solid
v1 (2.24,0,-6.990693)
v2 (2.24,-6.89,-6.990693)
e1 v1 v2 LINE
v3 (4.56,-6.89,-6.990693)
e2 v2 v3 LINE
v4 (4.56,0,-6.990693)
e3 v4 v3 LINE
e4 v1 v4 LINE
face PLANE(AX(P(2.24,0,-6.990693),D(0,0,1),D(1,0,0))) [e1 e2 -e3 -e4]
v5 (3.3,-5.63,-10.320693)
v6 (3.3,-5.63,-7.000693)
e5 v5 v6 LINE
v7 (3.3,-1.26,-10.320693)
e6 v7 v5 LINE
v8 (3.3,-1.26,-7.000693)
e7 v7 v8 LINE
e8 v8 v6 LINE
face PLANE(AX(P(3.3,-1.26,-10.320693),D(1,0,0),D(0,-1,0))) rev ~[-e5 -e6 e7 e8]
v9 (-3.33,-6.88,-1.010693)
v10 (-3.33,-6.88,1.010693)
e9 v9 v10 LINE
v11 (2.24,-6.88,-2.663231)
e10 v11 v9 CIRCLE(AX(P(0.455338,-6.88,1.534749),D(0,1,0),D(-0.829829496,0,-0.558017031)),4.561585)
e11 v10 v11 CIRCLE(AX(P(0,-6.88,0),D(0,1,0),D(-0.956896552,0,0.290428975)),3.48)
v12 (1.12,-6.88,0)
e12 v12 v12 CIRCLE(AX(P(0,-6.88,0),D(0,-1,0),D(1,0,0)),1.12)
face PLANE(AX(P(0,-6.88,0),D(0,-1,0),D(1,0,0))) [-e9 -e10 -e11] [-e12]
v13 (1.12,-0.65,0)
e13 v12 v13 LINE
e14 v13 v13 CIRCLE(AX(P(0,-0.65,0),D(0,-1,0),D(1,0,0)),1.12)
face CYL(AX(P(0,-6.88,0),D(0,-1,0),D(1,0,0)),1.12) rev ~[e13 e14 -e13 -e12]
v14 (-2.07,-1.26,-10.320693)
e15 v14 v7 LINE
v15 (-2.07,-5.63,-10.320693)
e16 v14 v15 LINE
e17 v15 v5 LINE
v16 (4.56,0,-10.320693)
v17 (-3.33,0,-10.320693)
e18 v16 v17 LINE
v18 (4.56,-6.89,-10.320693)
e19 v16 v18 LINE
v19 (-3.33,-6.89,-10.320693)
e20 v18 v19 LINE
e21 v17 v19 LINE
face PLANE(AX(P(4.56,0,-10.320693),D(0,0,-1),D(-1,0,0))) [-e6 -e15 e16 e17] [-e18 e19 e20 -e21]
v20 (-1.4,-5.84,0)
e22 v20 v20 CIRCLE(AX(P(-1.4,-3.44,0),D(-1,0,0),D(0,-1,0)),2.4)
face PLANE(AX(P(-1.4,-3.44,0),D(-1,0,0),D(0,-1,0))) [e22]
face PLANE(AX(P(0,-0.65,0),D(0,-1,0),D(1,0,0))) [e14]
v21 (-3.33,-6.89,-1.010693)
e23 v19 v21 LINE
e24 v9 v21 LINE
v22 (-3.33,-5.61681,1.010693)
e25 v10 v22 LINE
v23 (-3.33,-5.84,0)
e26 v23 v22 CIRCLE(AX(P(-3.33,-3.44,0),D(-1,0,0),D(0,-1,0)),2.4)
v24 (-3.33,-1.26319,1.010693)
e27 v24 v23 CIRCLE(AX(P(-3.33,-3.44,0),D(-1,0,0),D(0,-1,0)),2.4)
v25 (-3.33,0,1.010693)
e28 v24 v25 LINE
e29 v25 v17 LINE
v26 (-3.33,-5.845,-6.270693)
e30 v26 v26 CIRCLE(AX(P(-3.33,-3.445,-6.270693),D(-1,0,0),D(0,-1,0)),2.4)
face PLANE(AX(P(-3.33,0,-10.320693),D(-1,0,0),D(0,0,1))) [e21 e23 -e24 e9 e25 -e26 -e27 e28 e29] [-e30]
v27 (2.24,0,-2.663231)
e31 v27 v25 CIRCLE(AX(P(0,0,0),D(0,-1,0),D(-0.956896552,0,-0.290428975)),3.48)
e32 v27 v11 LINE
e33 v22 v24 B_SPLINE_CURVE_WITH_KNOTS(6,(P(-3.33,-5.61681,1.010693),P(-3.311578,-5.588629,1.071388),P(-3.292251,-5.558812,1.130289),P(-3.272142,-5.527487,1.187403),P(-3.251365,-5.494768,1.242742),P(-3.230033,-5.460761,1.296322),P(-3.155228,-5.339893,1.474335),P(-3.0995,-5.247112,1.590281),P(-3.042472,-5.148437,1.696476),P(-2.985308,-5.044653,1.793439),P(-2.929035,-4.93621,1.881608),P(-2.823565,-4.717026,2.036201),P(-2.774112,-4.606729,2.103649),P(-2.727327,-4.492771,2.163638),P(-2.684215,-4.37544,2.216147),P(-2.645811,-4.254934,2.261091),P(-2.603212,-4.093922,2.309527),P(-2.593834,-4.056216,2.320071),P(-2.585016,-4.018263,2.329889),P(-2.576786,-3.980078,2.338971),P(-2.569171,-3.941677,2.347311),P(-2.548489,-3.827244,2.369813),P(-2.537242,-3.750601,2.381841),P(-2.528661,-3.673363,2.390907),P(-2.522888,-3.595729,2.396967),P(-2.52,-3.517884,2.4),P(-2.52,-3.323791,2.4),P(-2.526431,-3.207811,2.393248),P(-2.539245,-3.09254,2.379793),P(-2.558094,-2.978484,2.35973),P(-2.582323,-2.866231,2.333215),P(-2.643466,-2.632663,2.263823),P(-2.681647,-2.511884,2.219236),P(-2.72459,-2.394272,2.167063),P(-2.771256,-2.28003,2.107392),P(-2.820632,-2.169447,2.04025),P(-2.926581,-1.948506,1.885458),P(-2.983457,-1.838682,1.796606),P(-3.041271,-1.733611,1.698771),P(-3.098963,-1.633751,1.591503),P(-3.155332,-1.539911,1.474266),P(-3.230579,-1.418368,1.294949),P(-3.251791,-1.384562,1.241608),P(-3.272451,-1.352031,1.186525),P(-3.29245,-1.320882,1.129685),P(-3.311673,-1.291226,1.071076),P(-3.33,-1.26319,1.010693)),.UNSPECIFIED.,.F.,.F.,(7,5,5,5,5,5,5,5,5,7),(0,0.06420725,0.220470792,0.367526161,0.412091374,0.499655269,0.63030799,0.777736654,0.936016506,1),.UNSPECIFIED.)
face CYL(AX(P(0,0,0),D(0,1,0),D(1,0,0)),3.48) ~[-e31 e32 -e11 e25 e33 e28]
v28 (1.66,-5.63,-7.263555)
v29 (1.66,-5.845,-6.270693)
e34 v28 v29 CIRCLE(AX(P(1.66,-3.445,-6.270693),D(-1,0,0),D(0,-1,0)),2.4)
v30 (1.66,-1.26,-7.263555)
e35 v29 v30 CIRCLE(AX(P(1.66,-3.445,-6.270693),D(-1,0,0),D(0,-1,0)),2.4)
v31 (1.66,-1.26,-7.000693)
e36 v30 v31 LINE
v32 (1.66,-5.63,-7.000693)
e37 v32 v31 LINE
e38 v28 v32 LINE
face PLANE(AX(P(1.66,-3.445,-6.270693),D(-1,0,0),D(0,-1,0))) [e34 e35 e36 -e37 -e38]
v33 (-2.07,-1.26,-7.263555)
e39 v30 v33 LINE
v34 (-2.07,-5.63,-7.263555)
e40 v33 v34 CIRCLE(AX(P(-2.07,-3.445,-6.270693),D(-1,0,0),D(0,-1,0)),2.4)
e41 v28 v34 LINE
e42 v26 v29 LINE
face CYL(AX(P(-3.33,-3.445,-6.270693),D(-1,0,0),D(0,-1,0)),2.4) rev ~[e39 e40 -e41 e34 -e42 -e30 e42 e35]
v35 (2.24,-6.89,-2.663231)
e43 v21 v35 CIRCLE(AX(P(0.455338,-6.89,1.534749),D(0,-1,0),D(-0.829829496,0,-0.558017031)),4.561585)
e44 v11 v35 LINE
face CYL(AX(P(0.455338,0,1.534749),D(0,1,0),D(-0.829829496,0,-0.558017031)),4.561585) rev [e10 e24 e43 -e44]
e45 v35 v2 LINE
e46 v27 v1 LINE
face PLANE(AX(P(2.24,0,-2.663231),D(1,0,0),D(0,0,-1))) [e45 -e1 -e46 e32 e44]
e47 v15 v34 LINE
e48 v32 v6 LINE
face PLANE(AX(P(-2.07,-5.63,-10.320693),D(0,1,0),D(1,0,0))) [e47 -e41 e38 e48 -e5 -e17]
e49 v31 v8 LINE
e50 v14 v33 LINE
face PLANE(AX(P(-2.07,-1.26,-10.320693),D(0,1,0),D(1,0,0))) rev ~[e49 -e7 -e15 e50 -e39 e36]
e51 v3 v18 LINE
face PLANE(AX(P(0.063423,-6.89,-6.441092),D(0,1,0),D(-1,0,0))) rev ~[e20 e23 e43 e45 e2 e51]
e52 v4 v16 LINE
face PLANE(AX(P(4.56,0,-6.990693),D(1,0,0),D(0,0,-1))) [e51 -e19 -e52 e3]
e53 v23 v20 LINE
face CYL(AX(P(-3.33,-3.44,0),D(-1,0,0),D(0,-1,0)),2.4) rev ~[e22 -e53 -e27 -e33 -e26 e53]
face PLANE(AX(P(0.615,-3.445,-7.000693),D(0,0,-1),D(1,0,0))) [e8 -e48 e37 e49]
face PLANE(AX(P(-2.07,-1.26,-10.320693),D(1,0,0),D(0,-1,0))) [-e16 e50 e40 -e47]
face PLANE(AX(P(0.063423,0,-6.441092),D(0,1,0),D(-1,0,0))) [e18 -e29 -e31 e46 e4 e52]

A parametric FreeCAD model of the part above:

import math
import FreeCAD as App
import Part
import Sketcher

V = App.Vector

doc = App.newDocument("Part")
body = doc.addObject("PartDesign::Body", "Body")

# Sketch on XZ plane
sketch1 = body.newObject("Sketcher::SketchObject", "Sketch")
sketch1.AttachmentSupport = (doc.getObject("XZ_Plane"), [""])
sketch1.MapMode = "FlatFace"
sketch1.addGeometry(Part.Circle(V(0, 0, 0), V(0, 0, 1), 3.5), False)
sketch1.addConstraint(Sketcher.Constraint("Coincident", 0, 3, -1, 1))
sketch1.addConstraint(Sketcher.Constraint("Diameter", 0, 6.96))
pad1 = body.newObject("PartDesign::Pad", "Pad")
pad1.Profile = sketch1
pad1.Length = 6.88

# Sketch on XZ plane
sketch2 = body.newObject("Sketcher::SketchObject", "Sketch001")
sketch2.AttachmentSupport = (doc.getObject("XZ_Plane"), [""])
sketch2.MapMode = "FlatFace"
sketch2.addGeometry(Part.LineSegment(V(-4.8, 2.1, 0), V(-3.3, 4.1, 0)), False)
sketch2.addGeometry(Part.LineSegment(V(-3.3, 4.1, 0), V(-3.3, -5.9, 0)), False)
sketch2.addGeometry(Part.LineSegment(V(-3.3, -5.9, 0), V(-4.8, 2.1, 0)), False)
sketch2.addConstraint(Sketcher.Constraint("Coincident", 0, 2, 1, 1))
sketch2.addConstraint(Sketcher.Constraint("Coincident", 1, 2, 2, 1))
sketch2.addConstraint(Sketcher.Constraint("Coincident", 2, 2, 0, 1))
sketch2.addConstraint(Sketcher.Constraint("Vertical", 1))
sketch2.addConstraint(Sketcher.Constraint("DistanceX", 0, 2, -1, 1, 3.33))
sketch2.addConstraint(Sketcher.Constraint("DistanceY", 1, 2, 1, 1, 9.997692))
sketch2.addConstraint(Sketcher.Constraint("DistanceY", -1, 1, 0, 2, 4.121852))
sketch2.addConstraint(Sketcher.Constraint("DistanceX", 2, 2, -1, 1, 4.844351))
sketch2.addConstraint(Sketcher.Constraint("Distance", 0, 2.492687))
pocket1 = body.newObject("PartDesign::Pocket", "Pocket")
pocket1.Profile = sketch2
pocket1.Type = "ThroughAll"
pocket1.Reversed = True

# Sketch on XZ plane
sketch3 = body.newObject("Sketcher::SketchObject", "Sketch002")
sketch3.AttachmentSupport = (doc.getObject("XZ_Plane"), [""])
sketch3.MapMode = "FlatFace"
sketch3.addGeometry(Part.LineSegment(V(-3.3, -10.3, 0), V(-3.3, -1, 0)), False)
sketch3.addGeometry(Part.ArcOfCircle(Part.Circle(V(0.5, 1.5, 0), V(0, 0, 1), 4.6), math.radians(-146), math.radians(-67)), False)
sketch3.addGeometry(Part.LineSegment(V(2.2, -2.7, 0), V(2.2, -7, 0)), False)
sketch3.addGeometry(Part.LineSegment(V(2.2, -7, 0), V(4.6, -7, 0)), False)
sketch3.addGeometry(Part.LineSegment(V(4.6, -7, 0), V(4.6, -10.3, 0)), False)
sketch3.addGeometry(Part.LineSegment(V(4.6, -10.3, 0), V(-3.3, -10.3, 0)), False)
sketch3.addConstraint(Sketcher.Constraint("Coincident", 0, 2, 1, 1))
sketch3.addConstraint(Sketcher.Constraint("Coincident", 1, 2, 2, 1))
sketch3.addConstraint(Sketcher.Constraint("Coincident", 2, 2, 3, 1))
sketch3.addConstraint(Sketcher.Constraint("Coincident", 3, 2, 4, 1))
sketch3.addConstraint(Sketcher.Constraint("Coincident", 4, 2, 5, 1))
sketch3.addConstraint(Sketcher.Constraint("Coincident", 5, 2, 0, 1))
sketch3.addConstraint(Sketcher.Constraint("Vertical", 0))
sketch3.addConstraint(Sketcher.Constraint("Vertical", 2))
sketch3.addConstraint(Sketcher.Constraint("Horizontal", 3))
sketch3.addConstraint(Sketcher.Constraint("Vertical", 4))
sketch3.addConstraint(Sketcher.Constraint("Horizontal", 5))
sketch3.addConstraint(Sketcher.Constraint("DistanceX", 3, 1, 3, 2, 2.32))
sketch3.addConstraint(Sketcher.Constraint("DistanceX", 5, 2, 5, 1, 7.89))
sketch3.addConstraint(Sketcher.Constraint("DistanceY", 0, 1, 0, 2, 9.31))
sketch3.addConstraint(Sketcher.Constraint("DistanceY", 4, 2, 4, 1, 3.33))
sketch3.addConstraint(Sketcher.Constraint("DistanceX", 0, 2, -1, 1, 3.33))
sketch3.addConstraint(Sketcher.Constraint("Radius", 1, 4.561585))
sketch3.addConstraint(Sketcher.Constraint("DistanceY", 2, 2, 2, 1, 4.327462))
sketch3.addConstraint(Sketcher.Constraint("DistanceY", -1, 1, 1, 3, 1.534749))
pad2 = body.newObject("PartDesign::Pad", "Pad001")
pad2.Profile = sketch3
pad2.Length = 6.89

# Sketch on XY plane
sketch4 = body.newObject("Sketcher::SketchObject", "Sketch003")
sketch4.AttachmentSupport = (doc.getObject("XY_Plane"), [""])
sketch4.MapMode = "FlatFace"
sketch4.AttachmentOffset = App.Placement(V(0, 0, -10.320693), App.Rotation())
sketch4.addGeometry(Part.LineSegment(V(-2.1, -5.6, 0), V(-2.1, -1.3, 0)), False)
sketch4.addGeometry(Part.LineSegment(V(-2.1, -1.3, 0), V(3.3, -1.3, 0)), False)
sketch4.addGeometry(Part.LineSegment(V(3.3, -1.3, 0), V(3.3, -5.6, 0)), False)
sketch4.addGeometry(Part.LineSegment(V(3.3, -5.6, 0), V(-2.1, -5.6, 0)), False)
sketch4.addConstraint(Sketcher.Constraint("Coincident", 0, 2, 1, 1))
sketch4.addConstraint(Sketcher.Constraint("Coincident", 1, 2, 2, 1))
sketch4.addConstraint(Sketcher.Constraint("Coincident", 2, 2, 3, 1))
sketch4.addConstraint(Sketcher.Constraint("Coincident", 3, 2, 0, 1))
sketch4.addConstraint(Sketcher.Constraint("Vertical", 0))
sketch4.addConstraint(Sketcher.Constraint("Horizontal", 1))
sketch4.addConstraint(Sketcher.Constraint("Vertical", 2))
sketch4.addConstraint(Sketcher.Constraint("Horizontal", 3))
sketch4.addConstraint(Sketcher.Constraint("DistanceX", 1, 1, 1, 2, 5.37))
sketch4.addConstraint(Sketcher.Constraint("DistanceY", 0, 1, 0, 2, 4.37))
sketch4.addConstraint(Sketcher.Constraint("DistanceX", -1, 1, 1, 2, 3.3))
sketch4.addConstraint(Sketcher.Constraint("DistanceY", 0, 2, -1, 1, 1.26))
pocket2 = body.newObject("PartDesign::Pocket", "Pocket001")
pocket2.Profile = sketch4
pocket2.Length = 3.32
pocket2.Reversed = True

# Sketch on YZ plane
sketch5 = body.newObject("Sketcher::SketchObject", "Sketch004")
sketch5.AttachmentSupport = (doc.getObject("YZ_Plane"), [""])
sketch5.MapMode = "FlatFace"
sketch5.AttachmentOffset = App.Placement(V(0, 0, -3.33), App.Rotation())
sketch5.addGeometry(Part.Circle(V(-3.4, 0, 0), V(0, 0, 1), 2.4), False)
sketch5.addConstraint(Sketcher.Constraint("PointOnObject", 0, 3, -1))
sketch5.addConstraint(Sketcher.Constraint("Diameter", 0, 4.8))
sketch5.addConstraint(Sketcher.Constraint("DistanceX", 0, 3, -1, 1, 3.44))
pocket3 = body.newObject("PartDesign::Pocket", "Pocket002")
pocket3.Profile = sketch5
pocket3.Length = 1.93
pocket3.Reversed = True

# Sketch on YZ plane
sketch6 = body.newObject("Sketcher::SketchObject", "Sketch005")
sketch6.AttachmentSupport = (doc.getObject("YZ_Plane"), [""])
sketch6.MapMode = "FlatFace"
sketch6.AttachmentOffset = App.Placement(V(0, 0, -3.33), App.Rotation())
sketch6.addGeometry(Part.Circle(V(-3.4, -6.3, 0), V(0, 0, 1), 2.4), False)
sketch6.addConstraint(Sketcher.Constraint("Diameter", 0, 4.8))
sketch6.addConstraint(Sketcher.Constraint("DistanceX", 0, 3, -1, 1, 3.445))
sketch6.addConstraint(Sketcher.Constraint("DistanceY", 0, 3, -1, 1, 6.270693))
pocket4 = body.newObject("PartDesign::Pocket", "Pocket003")
pocket4.Profile = sketch6
pocket4.Length = 4.99
pocket4.Reversed = True

# Sketch on XZ plane
sketch7 = body.newObject("Sketcher::SketchObject", "Sketch006")
sketch7.AttachmentSupport = (doc.getObject("XZ_Plane"), [""])
sketch7.MapMode = "FlatFace"
sketch7.AttachmentOffset = App.Placement(V(0, 0, 6.88), App.Rotation())
sketch7.addGeometry(Part.Circle(V(0, 0, 0), V(0, 0, 1), 1.1), False)
sketch7.addConstraint(Sketcher.Constraint("Coincident", 0, 3, -1, 1))
sketch7.addConstraint(Sketcher.Constraint("Diameter", 0, 2.24))
pocket5 = body.newObject("PartDesign::Pocket", "Pocket004")
pocket5.Profile = sketch7
pocket5.Length = 6.23

doc.recompute()
